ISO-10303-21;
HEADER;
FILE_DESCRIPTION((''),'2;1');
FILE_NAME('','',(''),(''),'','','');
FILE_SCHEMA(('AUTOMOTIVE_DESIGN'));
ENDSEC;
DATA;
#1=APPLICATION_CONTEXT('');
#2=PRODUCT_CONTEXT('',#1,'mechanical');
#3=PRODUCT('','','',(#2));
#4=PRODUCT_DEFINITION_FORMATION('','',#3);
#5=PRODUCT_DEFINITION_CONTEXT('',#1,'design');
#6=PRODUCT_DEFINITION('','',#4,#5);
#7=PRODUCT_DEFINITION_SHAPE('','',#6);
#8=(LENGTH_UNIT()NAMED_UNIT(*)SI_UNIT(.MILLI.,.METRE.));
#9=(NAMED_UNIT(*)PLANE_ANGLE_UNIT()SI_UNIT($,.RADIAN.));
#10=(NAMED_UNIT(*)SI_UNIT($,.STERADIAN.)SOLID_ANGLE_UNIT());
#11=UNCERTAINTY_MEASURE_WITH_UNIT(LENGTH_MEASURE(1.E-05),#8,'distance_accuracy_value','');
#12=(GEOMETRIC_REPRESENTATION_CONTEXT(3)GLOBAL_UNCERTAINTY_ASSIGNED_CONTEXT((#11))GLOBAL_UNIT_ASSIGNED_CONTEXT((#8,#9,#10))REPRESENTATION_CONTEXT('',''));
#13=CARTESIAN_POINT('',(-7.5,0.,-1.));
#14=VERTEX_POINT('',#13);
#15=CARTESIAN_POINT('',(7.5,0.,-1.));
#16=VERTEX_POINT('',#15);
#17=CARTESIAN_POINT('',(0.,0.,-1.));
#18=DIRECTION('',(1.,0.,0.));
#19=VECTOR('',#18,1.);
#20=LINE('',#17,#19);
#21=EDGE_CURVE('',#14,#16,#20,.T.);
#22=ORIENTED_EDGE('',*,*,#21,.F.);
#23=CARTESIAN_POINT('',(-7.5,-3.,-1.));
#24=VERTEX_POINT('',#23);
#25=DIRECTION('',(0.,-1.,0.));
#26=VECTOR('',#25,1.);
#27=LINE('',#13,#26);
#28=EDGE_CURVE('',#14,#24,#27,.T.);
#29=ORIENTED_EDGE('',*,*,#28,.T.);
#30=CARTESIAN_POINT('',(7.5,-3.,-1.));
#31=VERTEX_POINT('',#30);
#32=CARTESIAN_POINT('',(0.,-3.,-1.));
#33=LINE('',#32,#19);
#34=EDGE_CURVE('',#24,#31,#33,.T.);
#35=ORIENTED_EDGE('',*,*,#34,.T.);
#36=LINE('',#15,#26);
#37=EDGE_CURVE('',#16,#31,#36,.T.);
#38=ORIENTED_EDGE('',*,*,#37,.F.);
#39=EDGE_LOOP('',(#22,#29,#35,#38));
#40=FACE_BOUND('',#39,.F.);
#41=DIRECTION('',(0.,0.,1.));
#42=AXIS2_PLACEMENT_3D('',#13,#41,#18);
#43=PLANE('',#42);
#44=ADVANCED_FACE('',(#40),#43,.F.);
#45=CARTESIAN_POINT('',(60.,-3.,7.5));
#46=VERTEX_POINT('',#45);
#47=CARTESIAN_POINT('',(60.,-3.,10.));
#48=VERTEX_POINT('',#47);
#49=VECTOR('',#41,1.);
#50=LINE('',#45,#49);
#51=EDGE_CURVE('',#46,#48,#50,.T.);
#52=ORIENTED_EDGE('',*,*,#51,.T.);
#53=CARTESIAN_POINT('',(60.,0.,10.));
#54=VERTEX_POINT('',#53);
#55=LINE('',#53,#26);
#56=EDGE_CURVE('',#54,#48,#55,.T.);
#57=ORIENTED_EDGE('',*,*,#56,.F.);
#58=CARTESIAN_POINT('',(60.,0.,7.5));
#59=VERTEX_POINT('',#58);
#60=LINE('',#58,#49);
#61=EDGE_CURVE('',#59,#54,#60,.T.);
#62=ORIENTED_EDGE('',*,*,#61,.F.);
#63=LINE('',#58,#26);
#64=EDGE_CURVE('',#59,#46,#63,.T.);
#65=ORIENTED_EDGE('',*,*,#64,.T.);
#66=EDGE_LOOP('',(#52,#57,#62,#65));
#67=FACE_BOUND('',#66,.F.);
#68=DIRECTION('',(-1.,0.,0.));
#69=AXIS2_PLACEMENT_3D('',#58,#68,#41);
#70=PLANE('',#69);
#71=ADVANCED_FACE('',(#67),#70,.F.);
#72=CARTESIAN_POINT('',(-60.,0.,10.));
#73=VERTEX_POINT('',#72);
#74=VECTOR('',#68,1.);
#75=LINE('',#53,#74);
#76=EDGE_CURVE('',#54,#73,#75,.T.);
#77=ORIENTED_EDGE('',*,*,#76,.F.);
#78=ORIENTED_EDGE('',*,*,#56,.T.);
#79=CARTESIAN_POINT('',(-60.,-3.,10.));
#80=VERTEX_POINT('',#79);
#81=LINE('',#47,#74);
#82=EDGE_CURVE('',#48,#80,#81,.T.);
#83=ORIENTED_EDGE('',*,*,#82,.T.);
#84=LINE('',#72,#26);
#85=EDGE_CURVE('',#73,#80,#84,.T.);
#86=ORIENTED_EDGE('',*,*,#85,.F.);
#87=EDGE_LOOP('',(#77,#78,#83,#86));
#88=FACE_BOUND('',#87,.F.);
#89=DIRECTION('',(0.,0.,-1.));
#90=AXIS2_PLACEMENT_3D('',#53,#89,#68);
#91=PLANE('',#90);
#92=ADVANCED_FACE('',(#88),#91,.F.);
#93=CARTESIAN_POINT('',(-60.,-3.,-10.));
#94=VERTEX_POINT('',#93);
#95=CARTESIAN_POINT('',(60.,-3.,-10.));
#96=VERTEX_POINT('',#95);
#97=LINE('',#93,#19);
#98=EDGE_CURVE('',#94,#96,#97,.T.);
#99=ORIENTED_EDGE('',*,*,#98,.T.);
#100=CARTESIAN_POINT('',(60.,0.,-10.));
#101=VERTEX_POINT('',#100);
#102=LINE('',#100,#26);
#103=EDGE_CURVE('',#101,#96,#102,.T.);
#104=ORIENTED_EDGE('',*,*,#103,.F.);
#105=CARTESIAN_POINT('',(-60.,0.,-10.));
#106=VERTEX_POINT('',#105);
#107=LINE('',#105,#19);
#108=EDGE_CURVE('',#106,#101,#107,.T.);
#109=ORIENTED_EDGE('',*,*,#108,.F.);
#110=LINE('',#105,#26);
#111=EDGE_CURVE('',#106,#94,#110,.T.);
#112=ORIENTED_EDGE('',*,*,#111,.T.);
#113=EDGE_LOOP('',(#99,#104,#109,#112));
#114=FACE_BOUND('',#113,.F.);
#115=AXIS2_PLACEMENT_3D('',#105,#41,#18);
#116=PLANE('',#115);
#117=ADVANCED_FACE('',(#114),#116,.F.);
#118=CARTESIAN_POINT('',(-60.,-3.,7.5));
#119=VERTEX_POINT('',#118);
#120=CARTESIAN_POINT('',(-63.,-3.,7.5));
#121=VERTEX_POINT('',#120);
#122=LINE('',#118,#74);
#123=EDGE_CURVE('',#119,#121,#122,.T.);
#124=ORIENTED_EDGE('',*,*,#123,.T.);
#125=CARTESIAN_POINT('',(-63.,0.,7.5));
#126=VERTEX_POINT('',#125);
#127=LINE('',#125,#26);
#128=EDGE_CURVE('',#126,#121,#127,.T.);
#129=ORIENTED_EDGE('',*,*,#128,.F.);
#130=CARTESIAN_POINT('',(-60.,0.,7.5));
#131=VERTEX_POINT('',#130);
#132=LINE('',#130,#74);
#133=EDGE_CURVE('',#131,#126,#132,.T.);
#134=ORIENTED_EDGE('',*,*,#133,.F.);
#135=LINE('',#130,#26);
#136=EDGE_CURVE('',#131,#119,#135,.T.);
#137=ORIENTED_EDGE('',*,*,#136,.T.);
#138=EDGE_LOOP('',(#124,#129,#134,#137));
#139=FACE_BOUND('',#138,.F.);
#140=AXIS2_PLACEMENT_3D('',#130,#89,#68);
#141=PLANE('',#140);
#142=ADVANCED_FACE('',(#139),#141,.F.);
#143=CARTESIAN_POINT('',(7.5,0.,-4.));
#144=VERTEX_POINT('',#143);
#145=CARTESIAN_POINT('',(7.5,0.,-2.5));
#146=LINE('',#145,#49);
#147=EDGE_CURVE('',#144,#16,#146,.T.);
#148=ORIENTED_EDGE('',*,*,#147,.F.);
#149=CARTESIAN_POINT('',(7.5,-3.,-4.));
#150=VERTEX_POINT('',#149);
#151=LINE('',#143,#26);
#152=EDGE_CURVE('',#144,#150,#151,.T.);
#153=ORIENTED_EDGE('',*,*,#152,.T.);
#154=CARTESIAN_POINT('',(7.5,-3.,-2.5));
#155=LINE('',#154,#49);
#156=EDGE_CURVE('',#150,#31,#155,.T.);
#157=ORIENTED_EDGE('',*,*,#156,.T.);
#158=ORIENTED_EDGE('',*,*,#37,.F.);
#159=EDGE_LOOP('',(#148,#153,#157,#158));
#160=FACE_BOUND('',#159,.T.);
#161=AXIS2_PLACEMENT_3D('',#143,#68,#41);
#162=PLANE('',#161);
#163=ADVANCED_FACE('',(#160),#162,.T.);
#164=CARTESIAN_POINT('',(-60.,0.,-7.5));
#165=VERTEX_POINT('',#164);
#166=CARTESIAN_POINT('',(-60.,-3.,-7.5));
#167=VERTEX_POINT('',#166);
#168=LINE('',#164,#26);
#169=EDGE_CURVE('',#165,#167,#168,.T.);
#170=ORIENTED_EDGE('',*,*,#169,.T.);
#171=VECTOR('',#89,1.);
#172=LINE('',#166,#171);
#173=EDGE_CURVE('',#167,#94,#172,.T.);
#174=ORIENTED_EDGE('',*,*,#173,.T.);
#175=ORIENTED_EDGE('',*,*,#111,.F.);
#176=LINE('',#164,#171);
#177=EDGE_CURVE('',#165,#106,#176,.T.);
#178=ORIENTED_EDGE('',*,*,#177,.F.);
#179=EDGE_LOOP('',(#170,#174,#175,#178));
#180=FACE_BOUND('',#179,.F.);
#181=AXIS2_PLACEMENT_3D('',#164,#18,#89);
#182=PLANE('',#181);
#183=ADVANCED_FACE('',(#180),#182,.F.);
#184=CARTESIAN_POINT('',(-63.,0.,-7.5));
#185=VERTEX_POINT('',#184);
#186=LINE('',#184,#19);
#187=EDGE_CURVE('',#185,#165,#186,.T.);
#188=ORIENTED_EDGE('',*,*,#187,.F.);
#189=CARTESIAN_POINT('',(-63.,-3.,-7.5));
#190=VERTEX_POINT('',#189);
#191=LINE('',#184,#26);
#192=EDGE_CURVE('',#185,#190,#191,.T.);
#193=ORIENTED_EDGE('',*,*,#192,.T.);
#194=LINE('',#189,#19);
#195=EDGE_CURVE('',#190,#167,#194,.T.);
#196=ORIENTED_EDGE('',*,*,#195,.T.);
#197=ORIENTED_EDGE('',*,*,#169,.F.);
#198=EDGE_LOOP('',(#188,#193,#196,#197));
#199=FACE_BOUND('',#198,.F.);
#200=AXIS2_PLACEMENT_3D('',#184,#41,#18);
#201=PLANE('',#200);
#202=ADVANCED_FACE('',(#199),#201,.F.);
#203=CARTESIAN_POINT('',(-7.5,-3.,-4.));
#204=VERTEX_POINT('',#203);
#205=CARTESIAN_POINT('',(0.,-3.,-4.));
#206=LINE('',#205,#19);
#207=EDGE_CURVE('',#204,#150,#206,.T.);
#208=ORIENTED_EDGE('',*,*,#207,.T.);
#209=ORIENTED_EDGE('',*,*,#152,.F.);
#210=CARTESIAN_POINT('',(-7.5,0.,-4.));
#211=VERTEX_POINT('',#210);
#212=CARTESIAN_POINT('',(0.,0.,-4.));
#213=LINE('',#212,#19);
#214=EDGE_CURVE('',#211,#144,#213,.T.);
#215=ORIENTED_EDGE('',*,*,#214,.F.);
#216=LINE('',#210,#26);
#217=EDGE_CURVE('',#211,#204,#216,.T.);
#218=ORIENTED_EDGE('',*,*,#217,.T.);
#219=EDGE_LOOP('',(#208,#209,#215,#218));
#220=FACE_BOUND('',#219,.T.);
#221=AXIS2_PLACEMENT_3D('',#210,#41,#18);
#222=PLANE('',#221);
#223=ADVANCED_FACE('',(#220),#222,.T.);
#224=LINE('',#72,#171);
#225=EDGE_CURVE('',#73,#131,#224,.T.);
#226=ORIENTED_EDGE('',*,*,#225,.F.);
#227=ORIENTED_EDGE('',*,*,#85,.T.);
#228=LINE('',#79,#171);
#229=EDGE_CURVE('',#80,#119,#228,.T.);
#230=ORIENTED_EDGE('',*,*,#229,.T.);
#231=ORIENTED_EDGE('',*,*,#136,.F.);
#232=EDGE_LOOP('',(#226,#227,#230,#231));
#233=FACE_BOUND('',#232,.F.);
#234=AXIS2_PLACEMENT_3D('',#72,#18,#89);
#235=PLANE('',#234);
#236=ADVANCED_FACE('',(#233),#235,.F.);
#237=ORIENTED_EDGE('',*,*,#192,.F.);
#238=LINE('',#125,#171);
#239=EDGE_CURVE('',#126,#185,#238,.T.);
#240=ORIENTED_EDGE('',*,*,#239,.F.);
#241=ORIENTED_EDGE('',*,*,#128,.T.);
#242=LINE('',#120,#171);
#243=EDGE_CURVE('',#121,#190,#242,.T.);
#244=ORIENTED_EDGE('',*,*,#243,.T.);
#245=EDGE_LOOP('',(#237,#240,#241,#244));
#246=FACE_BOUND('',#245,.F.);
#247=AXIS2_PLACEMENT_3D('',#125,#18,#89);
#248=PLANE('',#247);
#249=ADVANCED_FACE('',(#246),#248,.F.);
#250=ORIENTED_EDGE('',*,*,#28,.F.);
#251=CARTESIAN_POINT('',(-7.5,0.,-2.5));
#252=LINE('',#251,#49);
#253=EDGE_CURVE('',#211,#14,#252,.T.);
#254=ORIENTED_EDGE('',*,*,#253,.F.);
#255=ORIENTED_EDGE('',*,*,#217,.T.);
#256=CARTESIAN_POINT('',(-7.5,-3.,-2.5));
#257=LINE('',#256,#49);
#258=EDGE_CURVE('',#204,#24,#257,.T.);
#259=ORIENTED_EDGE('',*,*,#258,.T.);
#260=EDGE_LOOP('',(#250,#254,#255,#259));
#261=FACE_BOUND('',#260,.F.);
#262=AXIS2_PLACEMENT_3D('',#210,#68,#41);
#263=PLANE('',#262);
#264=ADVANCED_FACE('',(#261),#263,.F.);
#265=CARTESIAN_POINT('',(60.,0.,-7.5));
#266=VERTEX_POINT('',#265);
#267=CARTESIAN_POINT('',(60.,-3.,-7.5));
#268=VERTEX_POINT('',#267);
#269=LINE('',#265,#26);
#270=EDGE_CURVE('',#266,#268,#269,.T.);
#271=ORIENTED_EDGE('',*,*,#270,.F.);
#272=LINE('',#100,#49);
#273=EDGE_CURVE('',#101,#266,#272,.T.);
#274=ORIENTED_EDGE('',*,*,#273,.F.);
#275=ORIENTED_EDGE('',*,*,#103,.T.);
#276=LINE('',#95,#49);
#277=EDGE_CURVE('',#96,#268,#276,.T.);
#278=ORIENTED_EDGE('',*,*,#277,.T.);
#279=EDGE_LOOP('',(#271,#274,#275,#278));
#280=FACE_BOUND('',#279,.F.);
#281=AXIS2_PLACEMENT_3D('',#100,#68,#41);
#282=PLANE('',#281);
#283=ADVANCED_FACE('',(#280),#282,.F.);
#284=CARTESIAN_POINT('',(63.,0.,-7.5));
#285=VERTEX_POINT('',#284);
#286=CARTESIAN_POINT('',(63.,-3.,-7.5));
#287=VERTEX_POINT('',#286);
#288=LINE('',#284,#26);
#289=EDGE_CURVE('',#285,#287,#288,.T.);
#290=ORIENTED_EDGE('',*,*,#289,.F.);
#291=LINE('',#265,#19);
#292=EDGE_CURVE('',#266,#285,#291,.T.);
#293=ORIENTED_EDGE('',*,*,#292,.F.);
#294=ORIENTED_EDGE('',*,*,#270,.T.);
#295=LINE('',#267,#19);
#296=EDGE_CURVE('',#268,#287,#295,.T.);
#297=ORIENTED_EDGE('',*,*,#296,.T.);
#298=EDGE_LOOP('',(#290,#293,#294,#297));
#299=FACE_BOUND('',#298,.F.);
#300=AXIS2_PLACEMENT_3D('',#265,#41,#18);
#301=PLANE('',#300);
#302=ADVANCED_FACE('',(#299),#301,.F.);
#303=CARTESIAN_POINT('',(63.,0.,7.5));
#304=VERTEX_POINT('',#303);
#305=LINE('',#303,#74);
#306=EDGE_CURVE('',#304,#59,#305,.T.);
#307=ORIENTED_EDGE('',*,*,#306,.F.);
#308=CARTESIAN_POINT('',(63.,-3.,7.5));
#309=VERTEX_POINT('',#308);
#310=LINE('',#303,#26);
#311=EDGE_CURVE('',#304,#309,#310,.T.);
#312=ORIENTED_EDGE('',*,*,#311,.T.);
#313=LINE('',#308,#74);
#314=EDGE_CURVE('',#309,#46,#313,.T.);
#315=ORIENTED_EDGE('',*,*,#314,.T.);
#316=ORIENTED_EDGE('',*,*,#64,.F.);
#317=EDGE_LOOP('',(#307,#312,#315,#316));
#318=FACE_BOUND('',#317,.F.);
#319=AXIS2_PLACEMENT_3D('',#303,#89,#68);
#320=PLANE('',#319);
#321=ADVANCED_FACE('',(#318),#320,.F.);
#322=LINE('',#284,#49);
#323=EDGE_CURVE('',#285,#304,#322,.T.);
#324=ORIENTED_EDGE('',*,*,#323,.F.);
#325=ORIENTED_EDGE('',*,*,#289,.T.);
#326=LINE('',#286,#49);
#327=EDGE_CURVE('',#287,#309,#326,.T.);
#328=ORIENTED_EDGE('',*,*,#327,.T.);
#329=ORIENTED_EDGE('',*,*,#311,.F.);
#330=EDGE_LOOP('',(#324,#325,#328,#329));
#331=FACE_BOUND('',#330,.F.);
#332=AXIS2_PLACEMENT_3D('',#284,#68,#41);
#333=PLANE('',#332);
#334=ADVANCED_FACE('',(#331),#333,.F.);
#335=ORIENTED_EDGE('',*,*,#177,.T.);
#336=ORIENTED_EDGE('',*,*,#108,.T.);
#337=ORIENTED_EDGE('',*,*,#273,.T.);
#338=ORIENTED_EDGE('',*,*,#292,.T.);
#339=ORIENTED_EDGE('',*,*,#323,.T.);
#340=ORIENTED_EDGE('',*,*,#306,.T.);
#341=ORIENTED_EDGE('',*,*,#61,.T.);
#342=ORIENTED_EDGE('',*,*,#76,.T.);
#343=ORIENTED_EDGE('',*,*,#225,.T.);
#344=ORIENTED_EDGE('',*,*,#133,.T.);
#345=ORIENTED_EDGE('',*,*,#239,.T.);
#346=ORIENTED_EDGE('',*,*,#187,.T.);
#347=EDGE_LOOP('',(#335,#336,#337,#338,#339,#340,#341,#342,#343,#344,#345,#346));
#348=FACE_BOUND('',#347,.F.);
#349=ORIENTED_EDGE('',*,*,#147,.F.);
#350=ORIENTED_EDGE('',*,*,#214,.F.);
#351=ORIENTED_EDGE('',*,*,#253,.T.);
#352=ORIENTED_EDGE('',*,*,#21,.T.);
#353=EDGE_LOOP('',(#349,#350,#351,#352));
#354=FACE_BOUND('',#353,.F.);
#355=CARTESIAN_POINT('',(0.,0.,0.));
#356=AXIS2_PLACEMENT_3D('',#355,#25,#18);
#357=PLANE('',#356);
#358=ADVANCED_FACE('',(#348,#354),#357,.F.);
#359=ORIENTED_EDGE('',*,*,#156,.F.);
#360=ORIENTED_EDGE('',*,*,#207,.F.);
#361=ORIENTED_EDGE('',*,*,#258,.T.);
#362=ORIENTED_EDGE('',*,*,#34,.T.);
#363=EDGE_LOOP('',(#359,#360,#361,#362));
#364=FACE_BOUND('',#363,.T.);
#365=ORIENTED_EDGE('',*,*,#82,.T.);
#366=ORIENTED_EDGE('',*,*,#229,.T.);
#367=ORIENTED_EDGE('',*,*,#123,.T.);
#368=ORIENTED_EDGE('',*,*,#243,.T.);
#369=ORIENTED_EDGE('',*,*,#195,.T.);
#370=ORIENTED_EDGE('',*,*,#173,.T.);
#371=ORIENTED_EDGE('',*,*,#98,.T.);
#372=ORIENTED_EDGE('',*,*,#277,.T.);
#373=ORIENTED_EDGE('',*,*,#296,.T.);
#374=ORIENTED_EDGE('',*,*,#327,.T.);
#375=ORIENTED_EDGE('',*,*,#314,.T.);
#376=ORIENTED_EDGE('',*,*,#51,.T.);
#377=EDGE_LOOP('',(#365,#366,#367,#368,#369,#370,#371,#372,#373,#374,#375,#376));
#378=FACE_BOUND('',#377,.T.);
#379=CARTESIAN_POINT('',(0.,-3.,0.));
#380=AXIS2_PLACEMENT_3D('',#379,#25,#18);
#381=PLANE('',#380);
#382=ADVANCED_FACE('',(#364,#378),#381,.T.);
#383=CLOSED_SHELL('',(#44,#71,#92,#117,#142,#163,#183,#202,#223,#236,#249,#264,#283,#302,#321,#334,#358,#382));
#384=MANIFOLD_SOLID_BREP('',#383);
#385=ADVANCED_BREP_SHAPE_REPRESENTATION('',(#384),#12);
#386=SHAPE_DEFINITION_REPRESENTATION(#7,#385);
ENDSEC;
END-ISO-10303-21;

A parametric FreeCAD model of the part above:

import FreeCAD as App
import Part
import Sketcher

V = App.Vector

doc = App.newDocument("Part")
body = doc.addObject("PartDesign::Body", "Body")

# Sketch on XZ plane
sketch1 = body.newObject("Sketcher::SketchObject", "Sketch")
sketch1.AttachmentSupport = (doc.getObject("XZ_Plane"), [""])
sketch1.MapMode = "FlatFace"
sketch1.addGeometry([
    Part.LineSegment(V(60, 10, 0), V(-60, 10, 0)),  # 0
    Part.LineSegment(V(-60, 10, 0), V(-60, 7.5, 0)),  # 1
    Part.LineSegment(V(-60, 7.5, 0), V(-63, 7.5, 0)),  # 2
    Part.LineSegment(V(-63, 7.5, 0), V(-63, -7.5, 0)),  # 3
    Part.LineSegment(V(-63, -7.5, 0), V(-60, -7.5, 0)),  # 4
    Part.LineSegment(V(-60, -7.5, 0), V(-60, -10, 0)),  # 5
    Part.LineSegment(V(-60, -10, 0), V(60, -10, 0)),  # 6
    Part.LineSegment(V(60, -10, 0), V(60, -7.5, 0)),  # 7
    Part.LineSegment(V(60, -7.5, 0), V(63, -7.5, 0)),  # 8
    Part.LineSegment(V(63, -7.5, 0), V(63, 7.5, 0)),  # 9
    Part.LineSegment(V(63, 7.5, 0), V(60, 7.5, 0)),  # 10
    Part.LineSegment(V(60, 7.5, 0), V(60, 10, 0)),  # 11
    Part.LineSegment(V(7.5, -4, 0), V(-7.5, -4, 0)),  # 12
    Part.LineSegment(V(-7.5, -4, 0), V(-7.5, -1, 0)),  # 13
    Part.LineSegment(V(-7.5, -1, 0), V(7.5, -1, 0)),  # 14
    Part.LineSegment(V(7.5, -1, 0), V(7.5, -4, 0)),  # 15
], False)
sketch1.addConstraint([
    Sketcher.Constraint("Coincident", 0, 2, 1, 1),
    Sketcher.Constraint("Coincident", 1, 2, 2, 1),
    Sketcher.Constraint("Coincident", 2, 2, 3, 1),
    Sketcher.Constraint("Coincident", 3, 2, 4, 1),
    Sketcher.Constraint("Coincident", 4, 2, 5, 1),
    Sketcher.Constraint("Coincident", 5, 2, 6, 1),
    Sketcher.Constraint("Coincident", 6, 2, 7, 1),
    Sketcher.Constraint("Coincident", 7, 2, 8, 1),
    Sketcher.Constraint("Coincident", 8, 2, 9, 1),
    Sketcher.Constraint("Coincident", 9, 2, 10, 1),
    Sketcher.Constraint("Coincident", 10, 2, 11, 1),
    Sketcher.Constraint("Coincident", 11, 2, 0, 1),
    Sketcher.Constraint("Coincident", 12, 2, 13, 1),
    Sketcher.Constraint("Coincident", 13, 2, 14, 1),
    Sketcher.Constraint("Coincident", 14, 2, 15, 1),
    Sketcher.Constraint("Coincident", 15, 2, 12, 1),
    Sketcher.Constraint("Horizontal", 0),
    Sketcher.Constraint("Vertical", 1),
    Sketcher.Constraint("Horizontal", 2),
    Sketcher.Constraint("Vertical", 3),
    Sketcher.Constraint("Horizontal", 4),
    Sketcher.Constraint("Vertical", 5),
    Sketcher.Constraint("Horizontal", 6),
    Sketcher.Constraint("Vertical", 7),
    Sketcher.Constraint("Horizontal", 8),
    Sketcher.Constraint("Vertical", 9),
    Sketcher.Constraint("Horizontal", 10),
    Sketcher.Constraint("Vertical", 11),
    Sketcher.Constraint("Horizontal", 12),
    Sketcher.Constraint("Vertical", 13),
    Sketcher.Constraint("Horizontal", 14),
    Sketcher.Constraint("Vertical", 15),
    Sketcher.Constraint("Symmetric", 0, 2, 6, 2, -1, 1),
    Sketcher.Constraint("Symmetric", 2, 2, 8, 2, -1, 1),
    Sketcher.Constraint("Symmetric", 4, 2, 10, 2, -1, 1),
    Sketcher.Constraint("Symmetric", 4, 2, 7, 2, -2),
    Sketcher.Constraint("Equal", 14, 3),
    Sketcher.Constraint("Equal", 10, 13),
    Sketcher.Constraint("DistanceX", 0, 2, 0, 1, 120.0),
    Sketcher.Constraint("DistanceX", 2, 2, 2, 1, 3.0),
    Sketcher.Constraint("DistanceX", 12, 2, 12, 1, 15.0),
    Sketcher.Constraint("DistanceY", 1, 2, 1, 1, 2.5),
    Sketcher.Constraint("DistanceY", 12, 2, -1, 1, 4.0),
    Sketcher.Constraint("DistanceX", 12, 2, -1, 1, 7.5),
])
pad1 = body.newObject("PartDesign::Pad", "Pad")
pad1.Profile = sketch1
pad1.Length = 3

doc.recompute()
